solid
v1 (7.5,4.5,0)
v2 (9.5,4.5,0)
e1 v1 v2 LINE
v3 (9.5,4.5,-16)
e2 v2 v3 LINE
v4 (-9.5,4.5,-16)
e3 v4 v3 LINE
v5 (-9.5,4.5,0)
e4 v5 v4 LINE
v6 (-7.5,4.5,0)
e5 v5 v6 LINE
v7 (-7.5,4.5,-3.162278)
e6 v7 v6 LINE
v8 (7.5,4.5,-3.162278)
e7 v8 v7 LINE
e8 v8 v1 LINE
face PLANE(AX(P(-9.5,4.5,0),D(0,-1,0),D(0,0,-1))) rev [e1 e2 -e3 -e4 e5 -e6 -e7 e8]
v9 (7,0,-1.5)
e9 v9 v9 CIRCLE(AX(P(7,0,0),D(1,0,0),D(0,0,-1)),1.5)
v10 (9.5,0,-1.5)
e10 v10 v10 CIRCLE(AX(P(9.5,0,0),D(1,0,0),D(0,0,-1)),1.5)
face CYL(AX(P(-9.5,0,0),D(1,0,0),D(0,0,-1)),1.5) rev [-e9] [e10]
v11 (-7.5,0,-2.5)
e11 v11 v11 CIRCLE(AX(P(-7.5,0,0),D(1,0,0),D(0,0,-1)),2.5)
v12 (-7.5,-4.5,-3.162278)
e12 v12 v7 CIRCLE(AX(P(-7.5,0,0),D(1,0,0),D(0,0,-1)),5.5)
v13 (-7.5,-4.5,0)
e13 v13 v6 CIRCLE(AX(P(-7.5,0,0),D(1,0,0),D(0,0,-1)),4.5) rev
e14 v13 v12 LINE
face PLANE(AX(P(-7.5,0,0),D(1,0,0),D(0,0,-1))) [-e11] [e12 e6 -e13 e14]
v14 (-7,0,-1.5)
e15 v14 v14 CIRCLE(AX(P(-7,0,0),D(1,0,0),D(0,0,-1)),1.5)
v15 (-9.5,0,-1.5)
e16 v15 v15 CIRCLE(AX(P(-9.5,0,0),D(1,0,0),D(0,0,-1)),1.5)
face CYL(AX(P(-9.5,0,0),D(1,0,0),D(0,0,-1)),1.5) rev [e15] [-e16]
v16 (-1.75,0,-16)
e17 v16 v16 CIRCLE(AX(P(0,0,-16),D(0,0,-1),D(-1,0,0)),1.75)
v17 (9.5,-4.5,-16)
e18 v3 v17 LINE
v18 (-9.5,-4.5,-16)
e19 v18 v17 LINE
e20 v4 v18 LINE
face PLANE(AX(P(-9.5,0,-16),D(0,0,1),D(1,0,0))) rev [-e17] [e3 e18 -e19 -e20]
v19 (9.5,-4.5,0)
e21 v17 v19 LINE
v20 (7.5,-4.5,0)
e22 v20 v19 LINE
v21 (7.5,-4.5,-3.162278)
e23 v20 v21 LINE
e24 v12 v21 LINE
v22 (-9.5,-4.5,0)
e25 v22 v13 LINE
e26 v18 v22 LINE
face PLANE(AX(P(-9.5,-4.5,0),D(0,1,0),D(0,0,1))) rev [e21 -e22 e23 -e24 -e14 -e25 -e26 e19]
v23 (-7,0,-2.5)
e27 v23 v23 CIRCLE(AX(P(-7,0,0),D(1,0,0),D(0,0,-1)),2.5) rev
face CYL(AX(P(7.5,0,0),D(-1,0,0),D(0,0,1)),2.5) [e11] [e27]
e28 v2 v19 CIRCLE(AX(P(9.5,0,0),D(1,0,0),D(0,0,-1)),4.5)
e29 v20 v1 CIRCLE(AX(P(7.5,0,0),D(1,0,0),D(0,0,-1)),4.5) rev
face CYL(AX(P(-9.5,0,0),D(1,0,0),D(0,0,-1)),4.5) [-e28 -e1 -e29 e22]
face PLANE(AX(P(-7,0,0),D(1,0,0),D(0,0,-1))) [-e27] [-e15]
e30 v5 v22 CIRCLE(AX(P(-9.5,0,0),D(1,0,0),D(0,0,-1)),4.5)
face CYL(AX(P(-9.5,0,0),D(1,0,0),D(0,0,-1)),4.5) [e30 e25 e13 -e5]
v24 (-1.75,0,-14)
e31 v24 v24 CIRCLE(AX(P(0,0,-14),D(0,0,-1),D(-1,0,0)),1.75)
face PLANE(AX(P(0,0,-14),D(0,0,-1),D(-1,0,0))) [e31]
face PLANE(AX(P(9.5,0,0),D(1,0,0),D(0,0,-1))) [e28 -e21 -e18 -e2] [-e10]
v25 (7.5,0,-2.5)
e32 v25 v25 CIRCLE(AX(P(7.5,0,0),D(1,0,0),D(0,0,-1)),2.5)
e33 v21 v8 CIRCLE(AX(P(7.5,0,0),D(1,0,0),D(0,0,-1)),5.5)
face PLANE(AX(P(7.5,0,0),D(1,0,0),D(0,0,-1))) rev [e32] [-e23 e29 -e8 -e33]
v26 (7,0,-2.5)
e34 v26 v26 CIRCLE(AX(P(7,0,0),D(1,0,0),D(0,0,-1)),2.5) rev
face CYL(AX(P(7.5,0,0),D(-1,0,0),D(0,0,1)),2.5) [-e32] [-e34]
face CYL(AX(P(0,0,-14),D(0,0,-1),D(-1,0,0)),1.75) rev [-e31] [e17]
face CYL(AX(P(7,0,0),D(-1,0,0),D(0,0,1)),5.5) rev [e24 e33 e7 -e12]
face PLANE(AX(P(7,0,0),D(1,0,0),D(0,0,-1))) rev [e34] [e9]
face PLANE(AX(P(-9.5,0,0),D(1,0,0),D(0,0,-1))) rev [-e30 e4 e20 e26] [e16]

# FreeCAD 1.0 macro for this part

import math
import FreeCAD as App
import Part
import Sketcher
Q = App.Units.Quantity

doc = App.newDocument("Part")
body = doc.addObject("PartDesign::Body", "Body")

# Sketch on YZ plane
sketch1 = body.newObject("Sketcher::SketchObject", "Sketch")
sketch1.AttachmentSupport = (doc.getObject("YZ_Plane"), [""])
sketch1.MapMode = "FlatFace"
sketch1.addGeometry(Part.ArcOfCircle(Part.Circle(App.Vector(0, 0, 0), App.Vector(0, 0, 1), 4.5), math.radians(0), math.radians(180)), False)
sketch1.addGeometry(Part.LineSegment(App.Vector(-4.5, 0, 0), App.Vector(-4.5, -16, 0)), False)
sketch1.addGeometry(Part.LineSegment(App.Vector(-4.5, -16, 0), App.Vector(4.5, -16, 0)), False)
sketch1.addGeometry(Part.LineSegment(App.Vector(4.5, -16, 0), App.Vector(4.5, 0, 0)), False)
sketch1.addConstraint(Sketcher.Constraint("Tangent", 0, 2, 1, 1))
sketch1.addConstraint(Sketcher.Constraint("Coincident", 1, 2, 2, 1))
sketch1.addConstraint(Sketcher.Constraint("Coincident", 2, 2, 3, 1))
sketch1.addConstraint(Sketcher.Constraint("Tangent", 3, 2, 0, 1))
sketch1.addConstraint(Sketcher.Constraint("Vertical", 1))
sketch1.addConstraint(Sketcher.Constraint("Horizontal", 2))
sketch1.addConstraint(Sketcher.Constraint("Vertical", 3))
sketch1.addConstraint(Sketcher.Constraint("Coincident", 0, 3, -1, 1))
sketch1.addConstraint(Sketcher.Constraint("Radius", 0, Q("4.5 mm")))
sketch1.addConstraint(Sketcher.Constraint("DistanceY", 1, 2, 1, 1, Q("16 mm")))
pad1 = body.newObject("PartDesign::Pad", "Pad")
pad1.Profile = sketch1
pad1.Type = "TwoLengths"
pad1.Length = 9.5
pad1.Length2 = 9.5

# Sketch on YZ plane
sketch2 = body.newObject("Sketcher::SketchObject", "Sketch001")
sketch2.AttachmentSupport = (doc.getObject("YZ_Plane"), [""])
sketch2.MapMode = "FlatFace"
sketch2.addGeometry(Part.Circle(App.Vector(0, 0, 0), App.Vector(0, 0, 1), 6), False)
sketch2.addConstraint(Sketcher.Constraint("Coincident", 0, 3, -1, 1))
sketch2.addConstraint(Sketcher.Constraint("Diameter", 0, Q("11 mm")))
pocket1 = body.newObject("PartDesign::Pocket", "Pocket")
pocket1.Profile = sketch2
pocket1.Type = "TwoLengths"
pocket1.Length = 7
pocket1.Length2 = 7
pocket1.Reversed = True

# Sketch on YZ plane
sketch3 = body.newObject("Sketcher::SketchObject", "Sketch002")
sketch3.AttachmentSupport = (doc.getObject("YZ_Plane"), [""])
sketch3.MapMode = "FlatFace"
sketch3.addGeometry(Part.Circle(App.Vector(0, 0, 0), App.Vector(0, 0, 1), 1.5), False)
sketch3.addConstraint(Sketcher.Constraint("Coincident", 0, 3, -1, 1))
sketch3.addConstraint(Sketcher.Constraint("Diameter", 0, Q("3 mm")))
pocket2 = body.newObject("PartDesign::Pocket", "Pocket001")
pocket2.Profile = sketch3
pocket2.Type = "ThroughAll"
pocket2.Midplane = True

# Sketch on YZ plane
sketch4 = body.newObject("Sketcher::SketchObject", "Sketch003")
sketch4.AttachmentSupport = (doc.getObject("YZ_Plane"), [""])
sketch4.MapMode = "FlatFace"
sketch4.addGeometry(Part.Circle(App.Vector(0, 0, 0), App.Vector(0, 0, 1), 5.5), False)
sketch4.addGeometry(Part.Circle(App.Vector(0, 0, 0), App.Vector(0, 0, 1), 2.5), False)
sketch4.addConstraint(Sketcher.Constraint("Coincident", 0, 3, -1, 1))
sketch4.addConstraint(Sketcher.Constraint("Coincident", 1, 3, -1, 1))
sketch4.addConstraint(Sketcher.Constraint("Diameter", 0, Q("11 mm")))
sketch4.addConstraint(Sketcher.Constraint("Diameter", 1, Q("5 mm")))
pocket3 = body.newObject("PartDesign::Pocket", "Pocket002")
pocket3.Profile = sketch4
pocket3.Type = "TwoLengths"
pocket3.Length = 7.5
pocket3.Length2 = 7.5
pocket3.Reversed = True

# Sketch on XY plane
sketch5 = body.newObject("Sketcher::SketchObject", "Sketch004")
sketch5.AttachmentSupport = (doc.getObject("XY_Plane"), [""])
sketch5.MapMode = "FlatFace"
sketch5.AttachmentOffset = App.Placement(App.Vector(0, 0, -16), App.Rotation())
sketch5.addGeometry(Part.Circle(App.Vector(0, 0, 0), App.Vector(0, 0, 1), 1.8), False)
sketch5.addConstraint(Sketcher.Constraint("Coincident", 0, 3, -1, 1))
sketch5.addConstraint(Sketcher.Constraint("Diameter", 0, Q("3.5 mm")))
pocket4 = body.newObject("PartDesign::Pocket", "Pocket003")
pocket4.Profile = sketch5
pocket4.Length = 2
pocket4.Reversed = True

doc.recompute()
